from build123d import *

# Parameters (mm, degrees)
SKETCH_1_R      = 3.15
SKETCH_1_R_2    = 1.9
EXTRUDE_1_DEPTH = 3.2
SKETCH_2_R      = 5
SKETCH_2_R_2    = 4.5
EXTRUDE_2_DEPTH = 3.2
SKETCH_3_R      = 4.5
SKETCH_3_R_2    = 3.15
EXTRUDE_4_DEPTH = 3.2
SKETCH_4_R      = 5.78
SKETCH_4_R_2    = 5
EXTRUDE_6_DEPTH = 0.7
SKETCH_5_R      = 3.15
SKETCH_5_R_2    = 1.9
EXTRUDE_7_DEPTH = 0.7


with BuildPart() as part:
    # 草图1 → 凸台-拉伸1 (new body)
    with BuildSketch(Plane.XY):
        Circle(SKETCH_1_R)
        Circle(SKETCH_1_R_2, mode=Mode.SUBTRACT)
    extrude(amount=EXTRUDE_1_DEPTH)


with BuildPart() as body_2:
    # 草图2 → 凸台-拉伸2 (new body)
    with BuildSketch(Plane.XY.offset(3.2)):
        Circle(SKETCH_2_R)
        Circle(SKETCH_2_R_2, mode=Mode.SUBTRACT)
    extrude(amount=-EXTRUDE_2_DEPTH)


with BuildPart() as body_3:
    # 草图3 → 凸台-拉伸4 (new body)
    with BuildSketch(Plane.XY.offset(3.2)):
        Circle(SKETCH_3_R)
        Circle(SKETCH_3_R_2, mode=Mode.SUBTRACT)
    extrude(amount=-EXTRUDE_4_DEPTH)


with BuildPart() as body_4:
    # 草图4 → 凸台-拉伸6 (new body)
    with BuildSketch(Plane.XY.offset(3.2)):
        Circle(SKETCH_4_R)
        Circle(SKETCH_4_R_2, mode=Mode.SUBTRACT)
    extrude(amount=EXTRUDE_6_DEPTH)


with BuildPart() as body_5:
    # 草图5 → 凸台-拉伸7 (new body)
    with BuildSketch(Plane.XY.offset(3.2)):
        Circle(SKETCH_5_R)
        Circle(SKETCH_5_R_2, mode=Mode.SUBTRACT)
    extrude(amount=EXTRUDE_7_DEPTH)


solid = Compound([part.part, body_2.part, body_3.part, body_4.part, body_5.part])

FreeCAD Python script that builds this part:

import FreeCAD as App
import Part
import Sketcher
from FreeCAD import Vector

doc = App.newDocument("Part")
body = doc.addObject("PartDesign::Body", "Body")

sketch1 = body.newObject("Sketcher::SketchObject", "Sketch")
sketch1.AttachmentSupport = (doc.getObject("XY_Plane"), [""])
sketch1.MapMode = "FlatFace"
sketch1.addGeometry([
    Part.Circle(Vector(0, 0, 0), Vector(0, 0, 1), 3.1),
    Part.Circle(Vector(0, 0, 0), Vector(0, 0, 1), 1.9),
], False)
sketch1.addConstraint([
    Sketcher.Constraint("Coincident", 0, 3, -1, 1),
    Sketcher.Constraint("Coincident", 1, 3, -1, 1),
    Sketcher.Constraint("Diameter", 0, 6.3),
    Sketcher.Constraint("Diameter", 1, 3.8),
])
pad1 = body.newObject("PartDesign::Pad", "Pad")
pad1.Profile = sketch1
pad1.Length = 3.2
body2 = doc.addObject("PartDesign::Body", "Body001")

sketch2 = body2.newObject("Sketcher::SketchObject", "Sketch001")
sketch2.AttachmentSupport = (doc.getObject("XY_Plane001"), [""])
sketch2.MapMode = "FlatFace"
sketch2.AttachmentOffset = App.Placement(Vector(0, 0, 3.2), App.Rotation())
sketch2.addGeometry([
    Part.Circle(Vector(0, 0, 0), Vector(0, 0, 1), 5),
    Part.Circle(Vector(0, 0, 0), Vector(0, 0, 1), 4.5),
], False)
sketch2.addConstraint([
    Sketcher.Constraint("Coincident", 0, 3, -1, 1),
    Sketcher.Constraint("Coincident", 1, 3, -1, 1),
    Sketcher.Constraint("Diameter", 0, 10.0),
    Sketcher.Constraint("Diameter", 1, 9.0),
])
pad2 = body2.newObject("PartDesign::Pad", "Pad001")
pad2.Profile = sketch2
pad2.Length = 3.2
pad2.Reversed = True
body3 = doc.addObject("PartDesign::Body", "Body002")

sketch3 = body3.newObject("Sketcher::SketchObject", "Sketch002")
sketch3.AttachmentSupport = (doc.getObject("XY_Plane002"), [""])
sketch3.MapMode = "FlatFace"
sketch3.AttachmentOffset = App.Placement(Vector(0, 0, 3.2), App.Rotation())
sketch3.addGeometry([
    Part.Circle(Vector(0, 0, 0), Vector(0, 0, 1), 4.5),
    Part.Circle(Vector(0, 0, 0), Vector(0, 0, 1), 3.1),
], False)
sketch3.addConstraint([
    Sketcher.Constraint("Coincident", 0, 3, -1, 1),
    Sketcher.Constraint("Coincident", 1, 3, -1, 1),
    Sketcher.Constraint("Diameter", 0, 9.0),
    Sketcher.Constraint("Diameter", 1, 6.3),
])
pad3 = body3.newObject("PartDesign::Pad", "Pad002")
pad3.Profile = sketch3
pad3.Length = 3.2
pad3.Reversed = True
body4 = doc.addObject("PartDesign::Body", "Body003")

sketch4 = body4.newObject("Sketcher::SketchObject", "Sketch003")
sketch4.AttachmentSupport = (doc.getObject("XY_Plane003"), [""])
sketch4.MapMode = "FlatFace"
sketch4.AttachmentOffset = App.Placement(Vector(0, 0, 3.2), App.Rotation())
sketch4.addGeometry([
    Part.Circle(Vector(0, 0, 0), Vector(0, 0, 1), 6),
    Part.Circle(Vector(0, 0, 0), Vector(0, 0, 1), 5),
], False)
sketch4.addConstraint([
    Sketcher.Constraint("Coincident", 0, 3, -1, 1),
    Sketcher.Constraint("Coincident", 1, 3, -1, 1),
    Sketcher.Constraint("Diameter", 1, 10.0),
    Sketcher.Constraint("Diameter", 0, 11.56),
])
pad4 = body4.newObject("PartDesign::Pad", "Pad003")
pad4.Profile = sketch4
pad4.Length = 0.7
body5 = doc.addObject("PartDesign::Body", "Body004")

sketch5 = body5.newObject("Sketcher::SketchObject", "Sketch004")
sketch5.AttachmentSupport = (doc.getObject("XY_Plane004"), [""])
sketch5.MapMode = "FlatFace"
sketch5.AttachmentOffset = App.Placement(Vector(0, 0, 3.2), App.Rotation())
sketch5.addGeometry([
    Part.Circle(Vector(0, 0, 0), Vector(0, 0, 1), 3.1),
    Part.Circle(Vector(0, 0, 0), Vector(0, 0, 1), 1.9),
], False)
sketch5.addConstraint([
    Sketcher.Constraint("Coincident", 0, 3, -1, 1),
    Sketcher.Constraint("Coincident", 1, 3, -1, 1),
    Sketcher.Constraint("Diameter", 0, 6.3),
    Sketcher.Constraint("Diameter", 1, 3.8),
])
pad5 = body5.newObject("PartDesign::Pad", "Pad004")
pad5.Profile = sketch5
pad5.Length = 0.7

doc.recompute()
